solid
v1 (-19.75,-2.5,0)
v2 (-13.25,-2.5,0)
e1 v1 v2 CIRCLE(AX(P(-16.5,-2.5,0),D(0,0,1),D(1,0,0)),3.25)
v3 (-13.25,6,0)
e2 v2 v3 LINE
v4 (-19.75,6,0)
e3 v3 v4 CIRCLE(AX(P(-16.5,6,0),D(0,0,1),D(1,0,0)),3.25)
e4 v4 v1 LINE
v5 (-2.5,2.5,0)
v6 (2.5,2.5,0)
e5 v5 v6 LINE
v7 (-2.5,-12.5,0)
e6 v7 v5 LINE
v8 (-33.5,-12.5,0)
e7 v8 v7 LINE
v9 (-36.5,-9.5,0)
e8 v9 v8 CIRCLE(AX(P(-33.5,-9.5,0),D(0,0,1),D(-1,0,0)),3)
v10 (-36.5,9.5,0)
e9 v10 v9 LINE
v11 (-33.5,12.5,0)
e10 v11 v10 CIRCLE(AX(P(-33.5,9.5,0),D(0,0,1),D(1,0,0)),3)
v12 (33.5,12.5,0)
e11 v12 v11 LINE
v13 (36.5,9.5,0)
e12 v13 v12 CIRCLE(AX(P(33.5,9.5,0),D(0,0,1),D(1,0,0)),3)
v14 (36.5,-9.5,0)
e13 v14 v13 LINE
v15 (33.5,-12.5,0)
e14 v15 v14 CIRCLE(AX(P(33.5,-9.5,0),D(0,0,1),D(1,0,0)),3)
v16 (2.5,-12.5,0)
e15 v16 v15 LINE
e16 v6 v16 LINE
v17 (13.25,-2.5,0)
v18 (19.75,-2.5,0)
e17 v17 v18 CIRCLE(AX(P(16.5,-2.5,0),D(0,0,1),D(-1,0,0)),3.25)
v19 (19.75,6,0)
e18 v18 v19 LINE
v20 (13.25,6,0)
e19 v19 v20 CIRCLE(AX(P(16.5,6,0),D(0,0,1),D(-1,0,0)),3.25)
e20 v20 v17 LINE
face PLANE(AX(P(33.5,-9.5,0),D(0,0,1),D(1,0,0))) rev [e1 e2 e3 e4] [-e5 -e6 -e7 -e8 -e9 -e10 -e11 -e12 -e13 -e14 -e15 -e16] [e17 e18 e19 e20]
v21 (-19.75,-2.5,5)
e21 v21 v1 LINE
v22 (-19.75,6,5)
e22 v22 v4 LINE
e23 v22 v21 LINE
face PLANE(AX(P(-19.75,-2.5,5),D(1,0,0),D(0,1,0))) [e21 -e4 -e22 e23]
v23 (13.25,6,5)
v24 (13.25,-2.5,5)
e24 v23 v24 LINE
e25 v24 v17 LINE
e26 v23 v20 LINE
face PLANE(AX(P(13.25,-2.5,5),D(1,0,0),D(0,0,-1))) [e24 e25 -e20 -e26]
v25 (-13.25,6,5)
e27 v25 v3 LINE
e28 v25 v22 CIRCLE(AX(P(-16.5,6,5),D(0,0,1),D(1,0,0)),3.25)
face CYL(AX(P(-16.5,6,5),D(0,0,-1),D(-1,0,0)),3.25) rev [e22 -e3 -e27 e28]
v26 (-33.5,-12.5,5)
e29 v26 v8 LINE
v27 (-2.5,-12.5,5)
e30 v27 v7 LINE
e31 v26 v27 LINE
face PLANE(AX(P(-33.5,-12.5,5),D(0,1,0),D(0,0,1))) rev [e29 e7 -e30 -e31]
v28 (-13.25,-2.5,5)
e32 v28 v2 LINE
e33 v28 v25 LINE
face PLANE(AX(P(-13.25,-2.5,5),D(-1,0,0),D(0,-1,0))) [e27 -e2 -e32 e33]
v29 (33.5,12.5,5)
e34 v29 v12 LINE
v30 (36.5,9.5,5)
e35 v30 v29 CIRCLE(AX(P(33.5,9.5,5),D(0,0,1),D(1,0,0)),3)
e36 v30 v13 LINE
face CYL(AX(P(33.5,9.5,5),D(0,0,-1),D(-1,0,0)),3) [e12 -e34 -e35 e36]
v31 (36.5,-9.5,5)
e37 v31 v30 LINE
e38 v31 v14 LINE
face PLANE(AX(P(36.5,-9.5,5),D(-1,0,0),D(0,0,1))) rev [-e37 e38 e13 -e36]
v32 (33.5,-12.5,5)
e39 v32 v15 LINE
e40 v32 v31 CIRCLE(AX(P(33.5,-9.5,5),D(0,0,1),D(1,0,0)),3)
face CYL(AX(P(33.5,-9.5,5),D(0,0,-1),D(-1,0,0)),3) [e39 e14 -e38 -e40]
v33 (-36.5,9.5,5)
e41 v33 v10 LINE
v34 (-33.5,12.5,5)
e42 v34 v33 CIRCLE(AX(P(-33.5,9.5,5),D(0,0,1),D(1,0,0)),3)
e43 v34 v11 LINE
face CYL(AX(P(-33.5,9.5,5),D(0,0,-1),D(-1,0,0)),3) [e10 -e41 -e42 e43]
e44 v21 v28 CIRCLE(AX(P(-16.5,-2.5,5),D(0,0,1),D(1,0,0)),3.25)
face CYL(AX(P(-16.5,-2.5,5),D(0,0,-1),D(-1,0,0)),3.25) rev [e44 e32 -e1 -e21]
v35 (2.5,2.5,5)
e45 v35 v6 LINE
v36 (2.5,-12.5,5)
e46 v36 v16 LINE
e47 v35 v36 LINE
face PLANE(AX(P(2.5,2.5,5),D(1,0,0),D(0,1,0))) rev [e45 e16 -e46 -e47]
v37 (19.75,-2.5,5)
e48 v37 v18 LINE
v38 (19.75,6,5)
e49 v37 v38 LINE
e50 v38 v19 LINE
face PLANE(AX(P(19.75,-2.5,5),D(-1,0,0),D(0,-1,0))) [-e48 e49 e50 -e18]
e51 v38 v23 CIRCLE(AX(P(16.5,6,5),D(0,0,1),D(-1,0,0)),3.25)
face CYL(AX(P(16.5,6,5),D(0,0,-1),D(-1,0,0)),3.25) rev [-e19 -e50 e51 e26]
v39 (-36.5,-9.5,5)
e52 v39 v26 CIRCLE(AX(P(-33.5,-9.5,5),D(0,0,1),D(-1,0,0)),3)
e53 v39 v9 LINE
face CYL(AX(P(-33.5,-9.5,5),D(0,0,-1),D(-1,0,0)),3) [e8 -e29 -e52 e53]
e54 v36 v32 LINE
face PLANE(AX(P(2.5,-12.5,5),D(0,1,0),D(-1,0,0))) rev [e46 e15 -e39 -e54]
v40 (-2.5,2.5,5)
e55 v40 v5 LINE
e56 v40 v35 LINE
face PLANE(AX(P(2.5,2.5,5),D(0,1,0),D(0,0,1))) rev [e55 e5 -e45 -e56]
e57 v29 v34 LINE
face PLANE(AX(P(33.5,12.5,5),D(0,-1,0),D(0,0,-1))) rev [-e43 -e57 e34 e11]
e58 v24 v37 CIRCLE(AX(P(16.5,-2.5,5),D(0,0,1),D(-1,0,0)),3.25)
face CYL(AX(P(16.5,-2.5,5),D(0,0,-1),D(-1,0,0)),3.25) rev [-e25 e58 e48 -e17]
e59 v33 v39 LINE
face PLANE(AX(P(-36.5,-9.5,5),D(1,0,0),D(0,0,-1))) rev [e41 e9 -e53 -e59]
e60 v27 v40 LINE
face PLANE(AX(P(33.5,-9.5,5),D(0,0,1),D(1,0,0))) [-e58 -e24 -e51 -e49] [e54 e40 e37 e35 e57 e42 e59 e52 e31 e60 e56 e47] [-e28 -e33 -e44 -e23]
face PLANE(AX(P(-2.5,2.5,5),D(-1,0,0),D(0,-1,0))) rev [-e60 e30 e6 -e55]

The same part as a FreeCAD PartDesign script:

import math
import FreeCAD as App
import Part
import Sketcher
from FreeCAD import Vector

doc = App.newDocument("Part")
body = doc.addObject("PartDesign::Body", "Body")

# Sketch on XY plane
sketch1 = doc.addObject("Sketcher::SketchObject", "Sketch")
body.addObject(sketch1)
sketch1.AttachmentSupport = (doc.XY_Plane, [""])
sketch1.MapMode = "FlatFace"
sketch1.addGeometry(Part.LineSegment(Vector(36.5, -9.5, 0), Vector(36.5, 9.5, 0)), False)
sketch1.addGeometry(Part.ArcOfCircle(Part.Circle(Vector(33.5, 9.5, 0), Vector(0, 0, 1), 3), math.radians(0), math.radians(90)), False)
sketch1.addGeometry(Part.LineSegment(Vector(33.5, 12.5, 0), Vector(-33.5, 12.5, 0)), False)
sketch1.addGeometry(Part.ArcOfCircle(Part.Circle(Vector(-33.5, 9.5, 0), Vector(0, 0, 1), 3), math.radians(90), math.radians(180)), False)
sketch1.addGeometry(Part.LineSegment(Vector(-36.5, 9.5, 0), Vector(-36.5, -9.5, 0)), False)
sketch1.addGeometry(Part.ArcOfCircle(Part.Circle(Vector(-33.5, -9.5, 0), Vector(0, 0, 1), 3), math.radians(180), math.radians(270)), False)
sketch1.addGeometry(Part.LineSegment(Vector(-33.5, -12.5, 0), Vector(-2.5, -12.5, 0)), False)
sketch1.addGeometry(Part.LineSegment(Vector(-2.5, -12.5, 0), Vector(-2.5, 2.5, 0)), False)
sketch1.addGeometry(Part.LineSegment(Vector(-2.5, 2.5, 0), Vector(2.5, 2.5, 0)), False)
sketch1.addGeometry(Part.LineSegment(Vector(2.5, 2.5, 0), Vector(2.5, -12.5, 0)), False)
sketch1.addGeometry(Part.LineSegment(Vector(2.5, -12.5, 0), Vector(33.5, -12.5, 0)), False)
sketch1.addGeometry(Part.ArcOfCircle(Part.Circle(Vector(33.5, -9.5, 0), Vector(0, 0, 1), 3), math.radians(-90), math.radians(0)), False)
sketch1.addGeometry(Part.ArcOfCircle(Part.Circle(Vector(-16.5, -2.5, 0), Vector(0, 0, 1), 3.25), math.radians(180), math.radians(360)), False)
sketch1.addGeometry(Part.LineSegment(Vector(-19.75, -2.5, 0), Vector(-19.75, 6, 0)), False)
sketch1.addGeometry(Part.ArcOfCircle(Part.Circle(Vector(-16.5, 6, 0), Vector(0, 0, 1), 3.25), math.radians(0), math.radians(180)), False)
sketch1.addGeometry(Part.LineSegment(Vector(-13.25, 6, 0), Vector(-13.25, -2.5, 0)), False)
sketch1.addGeometry(Part.LineSegment(Vector(19.75, 6, 0), Vector(19.75, -2.5, 0)), False)
sketch1.addGeometry(Part.ArcOfCircle(Part.Circle(Vector(16.5, -2.5, 0), Vector(0, 0, 1), 3.25), math.radians(180), math.radians(360)), False)
sketch1.addGeometry(Part.LineSegment(Vector(13.25, -2.5, 0), Vector(13.25, 6, 0)), False)
sketch1.addGeometry(Part.ArcOfCircle(Part.Circle(Vector(16.5, 6, 0), Vector(0, 0, 1), 3.25), math.radians(0), math.radians(180)), False)
sketch1.addConstraint(Sketcher.Constraint("Tangent", 0, 2, 1, 1))
sketch1.addConstraint(Sketcher.Constraint("Tangent", 1, 2, 2, 1))
sketch1.addConstraint(Sketcher.Constraint("Tangent", 2, 2, 3, 1))
sketch1.addConstraint(Sketcher.Constraint("Tangent", 3, 2, 4, 1))
sketch1.addConstraint(Sketcher.Constraint("Tangent", 4, 2, 5, 1))
sketch1.addConstraint(Sketcher.Constraint("Tangent", 5, 2, 6, 1))
sketch1.addConstraint(Sketcher.Constraint("Coincident", 6, 2, 7, 1))
sketch1.addConstraint(Sketcher.Constraint("Coincident", 7, 2, 8, 1))
sketch1.addConstraint(Sketcher.Constraint("Coincident", 8, 2, 9, 1))
sketch1.addConstraint(Sketcher.Constraint("Coincident", 9, 2, 10, 1))
sketch1.addConstraint(Sketcher.Constraint("Tangent", 10, 2, 11, 1))
sketch1.addConstraint(Sketcher.Constraint("Tangent", 11, 2, 0, 1))
sketch1.addConstraint(Sketcher.Constraint("Tangent", 12, 1, 13, 1))
sketch1.addConstraint(Sketcher.Constraint("Tangent", 13, 2, 14, 2))
sketch1.addConstraint(Sketcher.Constraint("Tangent", 14, 1, 15, 1))
sketch1.addConstraint(Sketcher.Constraint("Tangent", 15, 2, 12, 2))
sketch1.addConstraint(Sketcher.Constraint("Tangent", 16, 2, 17, 2))
sketch1.addConstraint(Sketcher.Constraint("Tangent", 17, 1, 18, 1))
sketch1.addConstraint(Sketcher.Constraint("Tangent", 18, 2, 19, 2))
sketch1.addConstraint(Sketcher.Constraint("Tangent", 19, 1, 16, 1))
sketch1.addConstraint(Sketcher.Constraint("Vertical", 0))
sketch1.addConstraint(Sketcher.Constraint("Horizontal", 2))
sketch1.addConstraint(Sketcher.Constraint("Vertical", 4))
sketch1.addConstraint(Sketcher.Constraint("Horizontal", 6))
sketch1.addConstraint(Sketcher.Constraint("Vertical", 7))
sketch1.addConstraint(Sketcher.Constraint("Horizontal", 8))
sketch1.addConstraint(Sketcher.Constraint("Vertical", 9))
sketch1.addConstraint(Sketcher.Constraint("Horizontal", 10))
sketch1.addConstraint(Sketcher.Constraint("Vertical", 13))
sketch1.addConstraint(Sketcher.Constraint("Vertical", 15))
sketch1.addConstraint(Sketcher.Constraint("Vertical", 16))
sketch1.addConstraint(Sketcher.Constraint("Vertical", 18))
sketch1.addConstraint(Sketcher.Constraint("Equal", 1, 3))
sketch1.addConstraint(Sketcher.Constraint("Equal", 3, 5))
sketch1.addConstraint(Sketcher.Constraint("Equal", 5, 11))
sketch1.addConstraint(Sketcher.Constraint("Equal", 14, 17))
sketch1.addConstraint(Sketcher.Constraint("Symmetric", 1, 3, 5, 3, -1, 1))
sketch1.addConstraint(Sketcher.Constraint("Symmetric", 12, 3, 17, 3, -2))
sketch1.addConstraint(Sketcher.Constraint("Symmetric", 6, 2, 9, 2, -2))
sketch1.addConstraint(Sketcher.Constraint("Horizontal", 14, 3, 19, 3))
sketch1.addConstraint(Sketcher.Constraint("Radius", 1, 3.0))
sketch1.addConstraint(Sketcher.Constraint("DistanceX", 2, 2, 2, 1, 67.0))
sketch1.addConstraint(Sketcher.Constraint("DistanceX", 6, 1, 6, 2, 31.0))
sketch1.addConstraint(Sketcher.Constraint("DistanceY", 0, 1, 0, 2, 19.0))
sketch1.addConstraint(Sketcher.Constraint("DistanceY", 7, 1, 7, 2, 15.0))
sketch1.addConstraint(Sketcher.Constraint("Radius", 12, 3.25))
sketch1.addConstraint(Sketcher.Constraint("DistanceY", 13, 1, 13, 2, 8.5))
sketch1.addConstraint(Sketcher.Constraint("DistanceY", -1, 1, 14, 3, 6.0))
sketch1.addConstraint(Sketcher.Constraint("DistanceX", 5, 3, 12, 3, 17.0))
pad1 = doc.addObject("PartDesign::Pad", "Pad")
body.addObject(pad1)
pad1.Profile = sketch1
pad1.Length = 5

doc.recompute()
